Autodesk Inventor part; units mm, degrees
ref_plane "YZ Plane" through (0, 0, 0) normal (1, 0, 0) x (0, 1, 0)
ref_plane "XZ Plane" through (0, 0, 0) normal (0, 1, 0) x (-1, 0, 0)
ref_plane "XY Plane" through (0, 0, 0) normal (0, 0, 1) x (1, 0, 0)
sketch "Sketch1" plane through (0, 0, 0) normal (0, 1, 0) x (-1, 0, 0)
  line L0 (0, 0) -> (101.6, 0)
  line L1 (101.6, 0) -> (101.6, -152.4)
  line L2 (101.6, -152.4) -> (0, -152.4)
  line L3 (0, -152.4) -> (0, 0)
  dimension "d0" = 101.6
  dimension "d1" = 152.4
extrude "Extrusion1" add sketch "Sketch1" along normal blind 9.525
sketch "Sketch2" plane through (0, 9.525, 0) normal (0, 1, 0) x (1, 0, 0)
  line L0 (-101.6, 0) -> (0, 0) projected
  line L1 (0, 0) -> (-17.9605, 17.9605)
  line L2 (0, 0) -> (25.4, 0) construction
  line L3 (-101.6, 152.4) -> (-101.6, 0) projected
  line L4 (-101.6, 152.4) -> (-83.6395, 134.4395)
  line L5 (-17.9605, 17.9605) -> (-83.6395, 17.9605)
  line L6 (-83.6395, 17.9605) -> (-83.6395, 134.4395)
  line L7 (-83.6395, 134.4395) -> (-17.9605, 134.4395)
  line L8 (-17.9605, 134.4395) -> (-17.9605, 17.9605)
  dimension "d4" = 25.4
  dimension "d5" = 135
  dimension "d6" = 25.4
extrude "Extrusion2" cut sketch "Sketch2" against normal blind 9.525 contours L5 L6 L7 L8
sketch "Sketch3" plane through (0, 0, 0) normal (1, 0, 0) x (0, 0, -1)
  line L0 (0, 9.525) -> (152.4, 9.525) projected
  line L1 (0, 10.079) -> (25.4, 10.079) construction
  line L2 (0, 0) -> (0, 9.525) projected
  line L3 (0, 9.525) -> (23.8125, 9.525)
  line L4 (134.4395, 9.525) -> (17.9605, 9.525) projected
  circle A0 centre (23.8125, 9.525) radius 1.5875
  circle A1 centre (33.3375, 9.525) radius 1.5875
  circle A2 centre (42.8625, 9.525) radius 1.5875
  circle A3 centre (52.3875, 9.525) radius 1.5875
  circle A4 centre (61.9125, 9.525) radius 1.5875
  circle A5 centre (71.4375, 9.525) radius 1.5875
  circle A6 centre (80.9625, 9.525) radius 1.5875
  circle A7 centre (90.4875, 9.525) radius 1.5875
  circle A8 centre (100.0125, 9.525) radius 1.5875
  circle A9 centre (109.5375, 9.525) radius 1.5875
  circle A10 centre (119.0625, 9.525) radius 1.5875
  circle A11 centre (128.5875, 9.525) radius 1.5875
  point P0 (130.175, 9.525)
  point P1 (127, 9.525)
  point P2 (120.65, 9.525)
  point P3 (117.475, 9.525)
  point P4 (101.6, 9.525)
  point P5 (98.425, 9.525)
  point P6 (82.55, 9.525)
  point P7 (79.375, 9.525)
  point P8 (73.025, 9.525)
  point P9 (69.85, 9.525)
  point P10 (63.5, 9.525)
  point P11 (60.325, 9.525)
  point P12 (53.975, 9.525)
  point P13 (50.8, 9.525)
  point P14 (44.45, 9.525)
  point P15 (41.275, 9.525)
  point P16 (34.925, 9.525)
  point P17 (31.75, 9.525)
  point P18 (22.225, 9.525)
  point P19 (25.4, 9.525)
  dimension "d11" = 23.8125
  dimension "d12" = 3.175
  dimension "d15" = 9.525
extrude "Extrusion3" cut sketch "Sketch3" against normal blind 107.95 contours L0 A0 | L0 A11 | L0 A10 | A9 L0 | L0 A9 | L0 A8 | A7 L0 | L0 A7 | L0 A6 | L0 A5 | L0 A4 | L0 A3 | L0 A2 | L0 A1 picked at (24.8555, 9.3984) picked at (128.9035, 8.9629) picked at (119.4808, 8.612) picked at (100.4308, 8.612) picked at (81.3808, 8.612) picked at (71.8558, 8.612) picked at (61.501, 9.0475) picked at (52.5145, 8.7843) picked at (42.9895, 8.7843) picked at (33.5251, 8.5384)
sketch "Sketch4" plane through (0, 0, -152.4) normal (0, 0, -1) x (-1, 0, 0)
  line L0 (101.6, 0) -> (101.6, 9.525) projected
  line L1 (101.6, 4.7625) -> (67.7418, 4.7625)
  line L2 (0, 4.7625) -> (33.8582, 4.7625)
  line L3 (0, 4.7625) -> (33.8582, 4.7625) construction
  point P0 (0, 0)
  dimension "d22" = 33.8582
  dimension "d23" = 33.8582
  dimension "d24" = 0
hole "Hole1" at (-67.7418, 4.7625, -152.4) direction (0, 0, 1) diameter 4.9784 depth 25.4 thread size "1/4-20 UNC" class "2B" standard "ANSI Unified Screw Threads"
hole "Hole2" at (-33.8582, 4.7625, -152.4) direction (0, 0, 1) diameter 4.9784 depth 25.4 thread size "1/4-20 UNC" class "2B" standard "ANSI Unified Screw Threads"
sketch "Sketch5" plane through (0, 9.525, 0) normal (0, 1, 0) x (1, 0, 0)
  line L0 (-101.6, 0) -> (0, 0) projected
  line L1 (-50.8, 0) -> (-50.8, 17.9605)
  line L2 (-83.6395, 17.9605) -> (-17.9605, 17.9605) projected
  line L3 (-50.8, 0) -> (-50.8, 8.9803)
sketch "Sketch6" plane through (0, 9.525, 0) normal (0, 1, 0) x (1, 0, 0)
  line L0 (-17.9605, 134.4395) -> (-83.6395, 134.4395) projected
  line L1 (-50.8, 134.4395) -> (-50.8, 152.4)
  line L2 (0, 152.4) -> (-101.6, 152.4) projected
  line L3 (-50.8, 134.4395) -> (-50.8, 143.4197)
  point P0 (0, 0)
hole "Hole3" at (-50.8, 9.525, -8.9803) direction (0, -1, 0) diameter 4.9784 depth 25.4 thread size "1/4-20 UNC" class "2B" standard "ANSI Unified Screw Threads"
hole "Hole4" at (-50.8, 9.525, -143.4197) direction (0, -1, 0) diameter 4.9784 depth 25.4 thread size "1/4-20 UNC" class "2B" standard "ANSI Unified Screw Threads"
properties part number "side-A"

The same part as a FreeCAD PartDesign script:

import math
import FreeCAD as App
import Part
import Sketcher
from FreeCAD import Vector
Q = App.Units.Quantity


def add_polygon(sketch, points):
    """Adds a closed chain of lines whose ends are joined by coincident constraints."""
    first, n = sketch.GeometryCount, len(points)
    for a, b in zip(points, points[1:] + points[:1]):
        sketch.addGeometry(Part.LineSegment(App.Vector(*a, 0), App.Vector(*b, 0)), False)
    for i in range(n):
        sketch.addConstraint(Sketcher.Constraint("Coincident", first + i, 2, first + (i + 1) % n, 1))

doc = App.newDocument("Part")
body = doc.addObject("PartDesign::Body", "Body")

sketch1 = doc.addObject("Sketcher::SketchObject", "Sketch")
body.addObject(sketch1)
sketch1.AttachmentSupport = (doc.XZ_Plane, [""])
sketch1.MapMode = "FlatFace"
add_polygon(sketch1, [(-102, 0), (0, 0), (0, -152), (-102, -152)])
sketch1.addConstraint([
    Sketcher.Constraint("Horizontal", 0),
    Sketcher.Constraint("Vertical", 1),
    Sketcher.Constraint("Horizontal", 2),
    Sketcher.Constraint("Vertical", 3),
    Sketcher.Constraint("Coincident", 0, 2, -1, 1),
    Sketcher.Constraint("DistanceX", 0, 1, 0, 2, Q("4 in")),
    Sketcher.Constraint("DistanceY", 1, 2, 1, 1, Q("6 in")),
])
pad1 = doc.addObject("PartDesign::Pad", "Pad")
body.addObject(pad1)
pad1.Profile = sketch1
pad1.Length = Q("0.375 in")
pad1.Reversed = True

sketch2 = doc.addObject("Sketcher::SketchObject", "Sketch001")
body.addObject(sketch2)
sketch2.AttachmentSupport = (doc.XZ_Plane, [""])
sketch2.MapMode = "FlatFace"
sketch2.AttachmentOffset = App.Placement(Vector(0, 0, -0.375 * 25.4), App.Rotation())
add_polygon(sketch2, [(-84, -18), (-18, -18), (-18, -134), (-84, -134)])
sketch2.addConstraint([
    Sketcher.Constraint("Horizontal", 0),
    Sketcher.Constraint("Vertical", 1),
    Sketcher.Constraint("Horizontal", 2),
    Sketcher.Constraint("Vertical", 3),
    Sketcher.Constraint("DistanceX", 0, 1, 0, 2, Q("65.679 mm")),
    Sketcher.Constraint("DistanceY", 1, 2, 1, 1, Q("116.479 mm")),
    Sketcher.Constraint("DistanceX", 0, 2, -1, 1, Q("0.7071 in")),
    Sketcher.Constraint("DistanceY", 0, 2, -1, 1, Q("0.7071 in")),
])
pocket1 = doc.addObject("PartDesign::Pocket", "Pocket")
body.addObject(pocket1)
pocket1.Profile = sketch2
pocket1.Length = Q("0.375 in")
pocket1.Reversed = True

sketch3 = doc.addObject("Sketcher::SketchObject", "Sketch002")
body.addObject(sketch3)
sketch3.AttachmentSupport = (doc.YZ_Plane, [""])
sketch3.MapMode = "FlatFace"
sketch3.addGeometry([
    Part.LineSegment(Vector(9.5, -25.4, 0), Vector(9.5, -22.2, 0)),
    Part.ArcOfCircle(Part.Circle(Vector(9.5, -23.8, 0), Vector(0, 0, 1), 1.6), math.radians(90), math.radians(270)),
    Part.LineSegment(Vector(9.5, -130.2, 0), Vector(9.5, -127, 0)),
    Part.ArcOfCircle(Part.Circle(Vector(9.5, -128.6, 0), Vector(0, 0, 1), 1.6), math.radians(90), math.radians(270)),
    Part.LineSegment(Vector(9.5, -120.7, 0), Vector(9.5, -117.5, 0)),
    Part.ArcOfCircle(Part.Circle(Vector(9.5, -119.1, 0), Vector(0, 0, 1), 1.6), math.radians(90), math.radians(270)),
    Part.Circle(Vector(9.5, -109.5, 0), Vector(0, 0, 1), 1.6),
    Part.LineSegment(Vector(9.5, -101.6, 0), Vector(9.5, -98.4, 0)),
    Part.ArcOfCircle(Part.Circle(Vector(9.5, -100, 0), Vector(0, 0, 1), 1.6), math.radians(90), math.radians(270)),
    Part.Circle(Vector(9.5, -90.5, 0), Vector(0, 0, 1), 1.6),
    Part.LineSegment(Vector(9.5, -82.5, 0), Vector(9.5, -79.4, 0)),
    Part.ArcOfCircle(Part.Circle(Vector(9.5, -81, 0), Vector(0, 0, 1), 1.6), math.radians(90), math.radians(270)),
    Part.LineSegment(Vector(9.5, -73, 0), Vector(9.5, -69.8, 0)),
    Part.ArcOfCircle(Part.Circle(Vector(9.5, -71.4, 0), Vector(0, 0, 1), 1.6), math.radians(90), math.radians(270)),
    Part.LineSegment(Vector(9.5, -63.5, 0), Vector(9.5, -60.3, 0)),
    Part.ArcOfCircle(Part.Circle(Vector(9.5, -61.9, 0), Vector(0, 0, 1), 1.6), math.radians(90), math.radians(270)),
    Part.LineSegment(Vector(9.5, -54, 0), Vector(9.5, -50.8, 0)),
    Part.ArcOfCircle(Part.Circle(Vector(9.5, -52.4, 0), Vector(0, 0, 1), 1.6), math.radians(90), math.radians(270)),
    Part.LineSegment(Vector(9.5, -44.5, 0), Vector(9.5, -41.3, 0)),
    Part.ArcOfCircle(Part.Circle(Vector(9.5, -42.9, 0), Vector(0, 0, 1), 1.6), math.radians(90), math.radians(270)),
    Part.LineSegment(Vector(9.5, -34.9, 0), Vector(9.5, -31.8, 0)),
    Part.ArcOfCircle(Part.Circle(Vector(9.5, -33.3, 0), Vector(0, 0, 1), 1.6), math.radians(90), math.radians(270)),
], False)
sketch3.addConstraint([
    Sketcher.Constraint("Coincident", 0, 1, 1, 2),
    Sketcher.Constraint("Coincident", 1, 1, 0, 2),
    Sketcher.Constraint("Coincident", 2, 1, 3, 2),
    Sketcher.Constraint("Coincident", 3, 1, 2, 2),
    Sketcher.Constraint("Coincident", 4, 1, 5, 2),
    Sketcher.Constraint("Coincident", 5, 1, 4, 2),
    Sketcher.Constraint("Coincident", 7, 1, 8, 2),
    Sketcher.Constraint("Coincident", 8, 1, 7, 2),
    Sketcher.Constraint("Coincident", 10, 1, 11, 2),
    Sketcher.Constraint("Coincident", 11, 1, 10, 2),
    Sketcher.Constraint("Coincident", 12, 1, 13, 2),
    Sketcher.Constraint("Coincident", 13, 1, 12, 2),
    Sketcher.Constraint("Coincident", 14, 1, 15, 2),
    Sketcher.Constraint("Coincident", 15, 1, 14, 2),
    Sketcher.Constraint("Coincident", 16, 1, 17, 2),
    Sketcher.Constraint("Coincident", 17, 1, 16, 2),
    Sketcher.Constraint("Coincident", 18, 1, 19, 2),
    Sketcher.Constraint("Coincident", 19, 1, 18, 2),
    Sketcher.Constraint("Coincident", 20, 1, 21, 2),
    Sketcher.Constraint("Coincident", 21, 1, 20, 2),
    Sketcher.Constraint("Vertical", 0),
    Sketcher.Constraint("Vertical", 2),
    Sketcher.Constraint("Vertical", 4),
    Sketcher.Constraint("Vertical", 7),
    Sketcher.Constraint("Vertical", 10),
    Sketcher.Constraint("Vertical", 12),
    Sketcher.Constraint("Vertical", 14),
    Sketcher.Constraint("Vertical", 16),
    Sketcher.Constraint("Vertical", 18),
    Sketcher.Constraint("Vertical", 20),
    Sketcher.Constraint("Equal", 1, 3),
    Sketcher.Constraint("Equal", 3, 5),
    Sketcher.Constraint("Equal", 5, 6),
    Sketcher.Constraint("Equal", 6, 8),
    Sketcher.Constraint("Equal", 8, 9),
    Sketcher.Constraint("Equal", 9, 11),
    Sketcher.Constraint("Equal", 11, 13),
    Sketcher.Constraint("Equal", 13, 15),
    Sketcher.Constraint("Equal", 15, 17),
    Sketcher.Constraint("Equal", 17, 19),
    Sketcher.Constraint("Equal", 19, 21),
    Sketcher.Constraint("Vertical", 1, 3, 3, 3),
    Sketcher.Constraint("Vertical", 3, 3, 5, 3),
    Sketcher.Constraint("Vertical", 5, 3, 6, 3),
    Sketcher.Constraint("Vertical", 6, 3, 8, 3),
    Sketcher.Constraint("Vertical", 8, 3, 9, 3),
    Sketcher.Constraint("Vertical", 9, 3, 11, 3),
    Sketcher.Constraint("Vertical", 11, 3, 13, 3),
    Sketcher.Constraint("Vertical", 13, 3, 15, 3),
    Sketcher.Constraint("Vertical", 15, 3, 17, 3),
    Sketcher.Constraint("Vertical", 17, 3, 19, 3),
    Sketcher.Constraint("Vertical", 19, 3, 21, 3),
    Sketcher.Constraint("Vertical", 21, 3, 0, 1),
    Sketcher.Constraint("Vertical", 1, 1, 2, 1),
    Sketcher.Constraint("Vertical", 3, 1, 4, 1),
    Sketcher.Constraint("Vertical", 5, 1, 7, 1),
    Sketcher.Constraint("Vertical", 8, 1, 10, 1),
    Sketcher.Constraint("Vertical", 11, 1, 12, 1),
    Sketcher.Constraint("Vertical", 13, 1, 14, 1),
    Sketcher.Constraint("Vertical", 15, 1, 16, 1),
    Sketcher.Constraint("Vertical", 17, 1, 18, 1),
    Sketcher.Constraint("Vertical", 19, 1, 20, 1),
    Sketcher.Constraint("Diameter", 6, Q("0.125 in")),
    Sketcher.Constraint("DistanceY", 0, 1, -1, 1, Q("1 in")),
    Sketcher.Constraint("DistanceX", -1, 1, 1, 3, Q("0.375 in")),
    Sketcher.Constraint("DistanceY", 3, 1, -1, 1, Q("5 in")),
    Sketcher.Constraint("DistanceY", 7, 1, -1, 1, Q("4 in")),
    Sketcher.Constraint("DistanceY", 17, 1, -1, 1, Q("2 in")),
    Sketcher.Constraint("DistanceY", 3, 3, 5, 3, Q("0.375 in")),
    Sketcher.Constraint("DistanceY", 5, 3, 6, 3, Q("0.375 in")),
    Sketcher.Constraint("DistanceY", 8, 3, 9, 3, Q("0.375 in")),
    Sketcher.Constraint("DistanceY", 9, 3, 11, 3, Q("0.375 in")),
    Sketcher.Constraint("DistanceY", 11, 3, 13, 3, Q("0.375 in")),
    Sketcher.Constraint("DistanceY", 13, 3, 15, 3, Q("0.375 in")),
    Sketcher.Constraint("DistanceY", 17, 3, 19, 3, Q("0.375 in")),
    Sketcher.Constraint("DistanceY", 21, 3, 1, 3, Q("0.375 in")),
])
pocket2 = doc.addObject("PartDesign::Pocket", "Pocket001")
body.addObject(pocket2)
pocket2.Profile = sketch3
pocket2.Length = Q("4.25 in")

sketch4 = doc.addObject("Sketcher::SketchObject", "Sketch003")
body.addObject(sketch4)
sketch4.AttachmentSupport = (doc.XY_Plane, [""])
sketch4.MapMode = "FlatFace"
sketch4.AttachmentOffset = App.Placement(Vector(0, 0, -6 * 25.4), App.Rotation())
sketch4.addGeometry(Part.Circle(Vector(-67.7, 4.8, 0), Vector(0, 0, 1), 2.5), False)
sketch4.addConstraint([
    Sketcher.Constraint("Diameter", 0, Q("0.196 in")),
    Sketcher.Constraint("DistanceX", 0, 3, -1, 1, Q("2.667 in")),
    Sketcher.Constraint("DistanceY", -1, 1, 0, 3, Q("0.1875 in")),
])
doc.recompute()
hole = doc.addObject("PartDesign::Hole", "Hole")
body.addObject(hole)
hole.Profile = sketch4
hole.ThreadType = "None"
hole.Diameter = Q("0.196 in")
hole.DepthType = "Dimension"
hole.Depth = Q("1 in")
hole.DrillPoint = "Flat"
hole.Reversed = True

sketch5 = doc.addObject("Sketcher::SketchObject", "Sketch004")
body.addObject(sketch5)
sketch5.AttachmentSupport = (doc.XY_Plane, [""])
sketch5.MapMode = "FlatFace"
sketch5.AttachmentOffset = App.Placement(Vector(0, 0, -6 * 25.4), App.Rotation())
sketch5.addGeometry(Part.Circle(Vector(-33.9, 4.8, 0), Vector(0, 0, 1), 2.5), False)
sketch5.addConstraint([
    Sketcher.Constraint("Diameter", 0, Q("0.196 in")),
    Sketcher.Constraint("DistanceX", 0, 3, -1, 1, Q("1.333 in")),
    Sketcher.Constraint("DistanceY", -1, 1, 0, 3, Q("0.1875 in")),
])
doc.recompute()
hole2 = doc.addObject("PartDesign::Hole", "Hole001")
body.addObject(hole2)
hole2.Profile = sketch5
hole2.ThreadType = "None"
hole2.Diameter = Q("0.196 in")
hole2.DepthType = "Dimension"
hole2.Depth = Q("1 in")
hole2.DrillPoint = "Flat"
hole2.Reversed = True

sketch6 = doc.addObject("Sketcher::SketchObject", "Sketch005")
body.addObject(sketch6)
sketch6.AttachmentSupport = (doc.XZ_Plane, [""])
sketch6.MapMode = "FlatFace"
sketch6.AttachmentOffset = App.Placement(Vector(0, 0, -0.375 * 25.4), App.Rotation())
sketch6.addGeometry(Part.Circle(Vector(-50.8, -9, 0), Vector(0, 0, 1), 2.5), False)
sketch6.addConstraint([
    Sketcher.Constraint("Diameter", 0, Q("0.196 in")),
    Sketcher.Constraint("DistanceX", 0, 3, -1, 1, Q("2 in")),
    Sketcher.Constraint("DistanceY", 0, 3, -1, 1, Q("8.9803 mm")),
])
doc.recompute()
hole3 = doc.addObject("PartDesign::Hole", "Hole002")
body.addObject(hole3)
hole3.Profile = sketch6
hole3.ThreadType = "None"
hole3.Diameter = Q("0.196 in")
hole3.DepthType = "Dimension"
hole3.Depth = Q("1 in")
hole3.DrillPoint = "Flat"
hole3.Reversed = True

sketch7 = doc.addObject("Sketcher::SketchObject", "Sketch006")
body.addObject(sketch7)
sketch7.AttachmentSupport = (doc.XZ_Plane, [""])
sketch7.MapMode = "FlatFace"
sketch7.AttachmentOffset = App.Placement(Vector(0, 0, -0.375 * 25.4), App.Rotation())
sketch7.addGeometry(Part.Circle(Vector(-50.8, -143.4, 0), Vector(0, 0, 1), 2.5), False)
sketch7.addConstraint([
    Sketcher.Constraint("Diameter", 0, Q("0.196 in")),
    Sketcher.Constraint("DistanceX", 0, 3, -1, 1, Q("2 in")),
    Sketcher.Constraint("DistanceY", 0, 3, -1, 1, Q("143.4197 mm")),
])
doc.recompute()
hole4 = doc.addObject("PartDesign::Hole", "Hole003")
body.addObject(hole4)
hole4.Profile = sketch7
hole4.ThreadType = "None"
hole4.Diameter = Q("0.196 in")
hole4.DepthType = "Dimension"
hole4.Depth = Q("1 in")
hole4.DrillPoint = "Flat"
hole4.Reversed = True

doc.recompute()
